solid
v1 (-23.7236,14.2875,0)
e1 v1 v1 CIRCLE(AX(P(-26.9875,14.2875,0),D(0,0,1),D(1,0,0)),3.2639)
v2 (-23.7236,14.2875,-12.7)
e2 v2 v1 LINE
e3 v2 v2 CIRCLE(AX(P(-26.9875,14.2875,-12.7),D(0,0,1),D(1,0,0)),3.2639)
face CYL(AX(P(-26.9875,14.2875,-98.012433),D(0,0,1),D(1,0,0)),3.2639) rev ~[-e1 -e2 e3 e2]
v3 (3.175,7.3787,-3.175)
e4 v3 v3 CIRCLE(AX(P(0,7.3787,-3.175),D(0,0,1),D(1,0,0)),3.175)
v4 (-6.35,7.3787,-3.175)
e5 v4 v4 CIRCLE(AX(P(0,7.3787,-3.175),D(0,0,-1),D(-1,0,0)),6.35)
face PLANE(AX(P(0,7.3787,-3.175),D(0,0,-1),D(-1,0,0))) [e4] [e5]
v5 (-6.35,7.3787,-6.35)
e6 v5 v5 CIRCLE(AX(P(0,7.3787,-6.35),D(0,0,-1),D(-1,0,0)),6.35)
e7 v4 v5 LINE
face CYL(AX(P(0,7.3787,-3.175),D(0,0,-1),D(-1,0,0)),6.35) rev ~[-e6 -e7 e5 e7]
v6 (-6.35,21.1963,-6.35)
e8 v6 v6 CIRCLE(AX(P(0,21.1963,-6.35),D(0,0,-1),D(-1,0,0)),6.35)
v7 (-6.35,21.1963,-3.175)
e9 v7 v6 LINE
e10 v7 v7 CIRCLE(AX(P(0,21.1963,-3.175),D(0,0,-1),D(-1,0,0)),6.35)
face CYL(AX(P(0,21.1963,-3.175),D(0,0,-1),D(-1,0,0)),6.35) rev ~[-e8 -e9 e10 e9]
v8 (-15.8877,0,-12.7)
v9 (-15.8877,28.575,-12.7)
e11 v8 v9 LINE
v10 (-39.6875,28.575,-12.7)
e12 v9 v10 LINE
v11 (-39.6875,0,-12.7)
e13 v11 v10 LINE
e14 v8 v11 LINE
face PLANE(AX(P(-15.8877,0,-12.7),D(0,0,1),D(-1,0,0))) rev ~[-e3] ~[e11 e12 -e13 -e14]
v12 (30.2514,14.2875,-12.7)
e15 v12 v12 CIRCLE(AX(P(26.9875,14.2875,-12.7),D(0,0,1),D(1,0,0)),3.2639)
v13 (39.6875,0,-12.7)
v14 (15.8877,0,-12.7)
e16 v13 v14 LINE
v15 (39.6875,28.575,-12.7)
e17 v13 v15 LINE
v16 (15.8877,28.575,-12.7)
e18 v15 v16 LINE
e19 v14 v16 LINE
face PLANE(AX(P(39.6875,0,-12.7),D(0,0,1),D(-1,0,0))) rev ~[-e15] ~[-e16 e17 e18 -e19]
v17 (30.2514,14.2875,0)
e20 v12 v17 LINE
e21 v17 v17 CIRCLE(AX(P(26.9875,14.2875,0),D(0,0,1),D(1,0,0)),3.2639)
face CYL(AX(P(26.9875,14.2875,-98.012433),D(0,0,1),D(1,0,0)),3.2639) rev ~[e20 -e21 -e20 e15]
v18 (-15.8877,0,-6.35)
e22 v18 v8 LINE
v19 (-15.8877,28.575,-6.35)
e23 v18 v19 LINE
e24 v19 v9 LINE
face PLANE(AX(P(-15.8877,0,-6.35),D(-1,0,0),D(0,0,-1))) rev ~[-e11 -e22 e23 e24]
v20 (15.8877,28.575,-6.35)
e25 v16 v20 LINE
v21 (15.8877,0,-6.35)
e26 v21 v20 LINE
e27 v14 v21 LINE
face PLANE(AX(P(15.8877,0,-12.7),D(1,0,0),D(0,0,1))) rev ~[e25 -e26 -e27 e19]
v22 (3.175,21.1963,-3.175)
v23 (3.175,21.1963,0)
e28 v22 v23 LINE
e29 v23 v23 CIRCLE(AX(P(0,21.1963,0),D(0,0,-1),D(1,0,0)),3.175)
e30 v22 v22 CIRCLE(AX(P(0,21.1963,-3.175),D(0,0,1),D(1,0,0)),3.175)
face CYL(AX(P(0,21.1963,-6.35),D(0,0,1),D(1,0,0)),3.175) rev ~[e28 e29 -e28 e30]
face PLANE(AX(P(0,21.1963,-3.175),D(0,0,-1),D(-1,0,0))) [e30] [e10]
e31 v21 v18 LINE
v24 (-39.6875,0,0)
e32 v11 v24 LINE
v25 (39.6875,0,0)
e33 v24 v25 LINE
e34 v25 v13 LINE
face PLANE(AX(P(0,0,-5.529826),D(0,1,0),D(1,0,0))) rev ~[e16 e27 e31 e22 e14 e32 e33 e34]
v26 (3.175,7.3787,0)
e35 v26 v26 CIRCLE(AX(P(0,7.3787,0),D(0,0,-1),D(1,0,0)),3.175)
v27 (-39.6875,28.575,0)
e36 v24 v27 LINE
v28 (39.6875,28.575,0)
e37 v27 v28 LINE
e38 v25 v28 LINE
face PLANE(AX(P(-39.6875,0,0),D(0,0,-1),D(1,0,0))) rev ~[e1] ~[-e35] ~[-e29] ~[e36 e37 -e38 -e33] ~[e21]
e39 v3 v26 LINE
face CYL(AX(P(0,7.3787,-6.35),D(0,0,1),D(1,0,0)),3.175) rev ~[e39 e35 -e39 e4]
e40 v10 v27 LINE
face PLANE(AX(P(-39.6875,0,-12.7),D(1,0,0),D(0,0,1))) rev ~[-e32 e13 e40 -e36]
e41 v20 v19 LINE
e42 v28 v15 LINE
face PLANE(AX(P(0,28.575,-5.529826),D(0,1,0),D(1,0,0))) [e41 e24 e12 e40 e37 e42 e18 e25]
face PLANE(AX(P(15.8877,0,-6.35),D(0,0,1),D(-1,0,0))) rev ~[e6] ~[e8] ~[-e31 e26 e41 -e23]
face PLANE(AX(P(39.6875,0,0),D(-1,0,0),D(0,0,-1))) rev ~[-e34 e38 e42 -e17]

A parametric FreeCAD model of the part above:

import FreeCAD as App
import Part
import Sketcher
from FreeCAD import Vector
Q = App.Units.Quantity


def add_polygon(sketch, points):
    """Adds a closed chain of lines whose ends are joined by coincident constraints."""
    first, n = sketch.GeometryCount, len(points)
    for a, b in zip(points, points[1:] + points[:1]):
        sketch.addGeometry(Part.LineSegment(App.Vector(*a, 0), App.Vector(*b, 0)), False)
    for i in range(n):
        sketch.addConstraint(Sketcher.Constraint("Coincident", first + i, 2, first + (i + 1) % n, 1))

doc = App.newDocument("Part")
body = doc.addObject("PartDesign::Body", "Body")

sketch1 = body.newObject("Sketcher::SketchObject", "Sketch")
sketch1.AttachmentSupport = (doc.getObject("XZ_Plane"), [""])
sketch1.MapMode = "FlatFace"
add_polygon(sketch1, [(-40, 0), (40, 0), (40, -13), (16, -13), (16, -6), (-16, -6), (-16, -13), (-40, -13)])
sketch1.addConstraint([
    Sketcher.Constraint("Horizontal", 0),
    Sketcher.Constraint("Vertical", 1),
    Sketcher.Constraint("Horizontal", 2),
    Sketcher.Constraint("Vertical", 3),
    Sketcher.Constraint("Horizontal", 4),
    Sketcher.Constraint("Vertical", 5),
    Sketcher.Constraint("Horizontal", 6),
    Sketcher.Constraint("Vertical", 7),
    Sketcher.Constraint("Symmetric", 0, 2, 7, 2, -1, 1),
    Sketcher.Constraint("Symmetric", 2, 2, 5, 2, -2),
    Sketcher.Constraint("DistanceY", 1, 2, 1, 1, Q("0.5 in")),
    Sketcher.Constraint("DistanceY", 3, 1, 3, 2, Q("0.25 in")),
    Sketcher.Constraint("DistanceX", 0, 1, 0, 2, Q("3.125 in")),
    Sketcher.Constraint("DistanceX", 2, 2, 2, 1, Q("0.937 in")),
])
pad1 = body.newObject("PartDesign::Pad", "Pad")
pad1.Profile = sketch1
pad1.Length = Q("1.125 in")
pad1.Reversed = True

sketch2 = body.newObject("Sketcher::SketchObject", "Sketch001")
sketch2.AttachmentSupport = (doc.getObject("XY_Plane"), [""])
sketch2.MapMode = "FlatFace"
sketch2.AttachmentOffset = App.Placement(Vector(0, 0, -0.5 * 25.4), App.Rotation())
sketch2.addGeometry([
    Part.Circle(Vector(-27, 14.3, 0), Vector(0, 0, 1), 3.3),
    Part.Circle(Vector(27, 14.3, 0), Vector(0, 0, 1), 3.3),
], False)
sketch2.addConstraint([
    Sketcher.Constraint("Equal", 0, 1),
    Sketcher.Constraint("Symmetric", 0, 3, 1, 3, -2),
    Sketcher.Constraint("Diameter", 0, Q("0.257 in")),
    Sketcher.Constraint("DistanceX", 0, 3, -1, 1, Q("1.0625 in")),
    Sketcher.Constraint("DistanceY", -1, 1, 0, 3, Q("0.5625 in")),
])
doc.recompute()
hole = body.newObject("PartDesign::Hole", "Hole")
hole.Profile = sketch2
hole.ThreadType = "None"
hole.Diameter = Q("0.257 in")
hole.DepthType = "ThroughAll"
hole.Reversed = True

sketch3 = body.newObject("Sketcher::SketchObject", "Sketch002")
sketch3.AttachmentSupport = (doc.getObject("XY_Plane"), [""])
sketch3.MapMode = "FlatFace"
sketch3.AttachmentOffset = App.Placement(Vector(0, 0, -0.25 * 25.4), App.Rotation())
sketch3.addGeometry([
    Part.Circle(Vector(0, 21.2, 0), Vector(0, 0, 1), 3.2),
    Part.Circle(Vector(0, 7.4, 0), Vector(0, 0, 1), 3.2),
], False)
sketch3.addConstraint([
    Sketcher.Constraint("Equal", 0, 1),
    Sketcher.Constraint("PointOnObject", 0, 3, -2),
    Sketcher.Constraint("PointOnObject", 1, 3, -2),
    Sketcher.Constraint("Diameter", 0, Q("0.25 in")),
    Sketcher.Constraint("DistanceY", 1, 3, 0, 3, Q("0.544 in")),
    Sketcher.Constraint("DistanceY", -1, 1, 0, 3, Q("0.8345 in")),
])
doc.recompute()
hole2 = body.newObject("PartDesign::Hole", "Hole001")
hole2.Profile = sketch3
hole2.ThreadType = "None"
hole2.Diameter = Q("0.25 in")
hole2.DepthType = "Dimension"
hole2.Depth = Q("0.25 in")
hole2.DrillPoint = "Angled"
hole2.DrillPointAngle = 118
hole2.HoleCutType = "Counterbore"
hole2.HoleCutDiameter = Q("0.5 in")
hole2.HoleCutDepth = Q("0.125 in")
hole2.Reversed = True

doc.recompute()
